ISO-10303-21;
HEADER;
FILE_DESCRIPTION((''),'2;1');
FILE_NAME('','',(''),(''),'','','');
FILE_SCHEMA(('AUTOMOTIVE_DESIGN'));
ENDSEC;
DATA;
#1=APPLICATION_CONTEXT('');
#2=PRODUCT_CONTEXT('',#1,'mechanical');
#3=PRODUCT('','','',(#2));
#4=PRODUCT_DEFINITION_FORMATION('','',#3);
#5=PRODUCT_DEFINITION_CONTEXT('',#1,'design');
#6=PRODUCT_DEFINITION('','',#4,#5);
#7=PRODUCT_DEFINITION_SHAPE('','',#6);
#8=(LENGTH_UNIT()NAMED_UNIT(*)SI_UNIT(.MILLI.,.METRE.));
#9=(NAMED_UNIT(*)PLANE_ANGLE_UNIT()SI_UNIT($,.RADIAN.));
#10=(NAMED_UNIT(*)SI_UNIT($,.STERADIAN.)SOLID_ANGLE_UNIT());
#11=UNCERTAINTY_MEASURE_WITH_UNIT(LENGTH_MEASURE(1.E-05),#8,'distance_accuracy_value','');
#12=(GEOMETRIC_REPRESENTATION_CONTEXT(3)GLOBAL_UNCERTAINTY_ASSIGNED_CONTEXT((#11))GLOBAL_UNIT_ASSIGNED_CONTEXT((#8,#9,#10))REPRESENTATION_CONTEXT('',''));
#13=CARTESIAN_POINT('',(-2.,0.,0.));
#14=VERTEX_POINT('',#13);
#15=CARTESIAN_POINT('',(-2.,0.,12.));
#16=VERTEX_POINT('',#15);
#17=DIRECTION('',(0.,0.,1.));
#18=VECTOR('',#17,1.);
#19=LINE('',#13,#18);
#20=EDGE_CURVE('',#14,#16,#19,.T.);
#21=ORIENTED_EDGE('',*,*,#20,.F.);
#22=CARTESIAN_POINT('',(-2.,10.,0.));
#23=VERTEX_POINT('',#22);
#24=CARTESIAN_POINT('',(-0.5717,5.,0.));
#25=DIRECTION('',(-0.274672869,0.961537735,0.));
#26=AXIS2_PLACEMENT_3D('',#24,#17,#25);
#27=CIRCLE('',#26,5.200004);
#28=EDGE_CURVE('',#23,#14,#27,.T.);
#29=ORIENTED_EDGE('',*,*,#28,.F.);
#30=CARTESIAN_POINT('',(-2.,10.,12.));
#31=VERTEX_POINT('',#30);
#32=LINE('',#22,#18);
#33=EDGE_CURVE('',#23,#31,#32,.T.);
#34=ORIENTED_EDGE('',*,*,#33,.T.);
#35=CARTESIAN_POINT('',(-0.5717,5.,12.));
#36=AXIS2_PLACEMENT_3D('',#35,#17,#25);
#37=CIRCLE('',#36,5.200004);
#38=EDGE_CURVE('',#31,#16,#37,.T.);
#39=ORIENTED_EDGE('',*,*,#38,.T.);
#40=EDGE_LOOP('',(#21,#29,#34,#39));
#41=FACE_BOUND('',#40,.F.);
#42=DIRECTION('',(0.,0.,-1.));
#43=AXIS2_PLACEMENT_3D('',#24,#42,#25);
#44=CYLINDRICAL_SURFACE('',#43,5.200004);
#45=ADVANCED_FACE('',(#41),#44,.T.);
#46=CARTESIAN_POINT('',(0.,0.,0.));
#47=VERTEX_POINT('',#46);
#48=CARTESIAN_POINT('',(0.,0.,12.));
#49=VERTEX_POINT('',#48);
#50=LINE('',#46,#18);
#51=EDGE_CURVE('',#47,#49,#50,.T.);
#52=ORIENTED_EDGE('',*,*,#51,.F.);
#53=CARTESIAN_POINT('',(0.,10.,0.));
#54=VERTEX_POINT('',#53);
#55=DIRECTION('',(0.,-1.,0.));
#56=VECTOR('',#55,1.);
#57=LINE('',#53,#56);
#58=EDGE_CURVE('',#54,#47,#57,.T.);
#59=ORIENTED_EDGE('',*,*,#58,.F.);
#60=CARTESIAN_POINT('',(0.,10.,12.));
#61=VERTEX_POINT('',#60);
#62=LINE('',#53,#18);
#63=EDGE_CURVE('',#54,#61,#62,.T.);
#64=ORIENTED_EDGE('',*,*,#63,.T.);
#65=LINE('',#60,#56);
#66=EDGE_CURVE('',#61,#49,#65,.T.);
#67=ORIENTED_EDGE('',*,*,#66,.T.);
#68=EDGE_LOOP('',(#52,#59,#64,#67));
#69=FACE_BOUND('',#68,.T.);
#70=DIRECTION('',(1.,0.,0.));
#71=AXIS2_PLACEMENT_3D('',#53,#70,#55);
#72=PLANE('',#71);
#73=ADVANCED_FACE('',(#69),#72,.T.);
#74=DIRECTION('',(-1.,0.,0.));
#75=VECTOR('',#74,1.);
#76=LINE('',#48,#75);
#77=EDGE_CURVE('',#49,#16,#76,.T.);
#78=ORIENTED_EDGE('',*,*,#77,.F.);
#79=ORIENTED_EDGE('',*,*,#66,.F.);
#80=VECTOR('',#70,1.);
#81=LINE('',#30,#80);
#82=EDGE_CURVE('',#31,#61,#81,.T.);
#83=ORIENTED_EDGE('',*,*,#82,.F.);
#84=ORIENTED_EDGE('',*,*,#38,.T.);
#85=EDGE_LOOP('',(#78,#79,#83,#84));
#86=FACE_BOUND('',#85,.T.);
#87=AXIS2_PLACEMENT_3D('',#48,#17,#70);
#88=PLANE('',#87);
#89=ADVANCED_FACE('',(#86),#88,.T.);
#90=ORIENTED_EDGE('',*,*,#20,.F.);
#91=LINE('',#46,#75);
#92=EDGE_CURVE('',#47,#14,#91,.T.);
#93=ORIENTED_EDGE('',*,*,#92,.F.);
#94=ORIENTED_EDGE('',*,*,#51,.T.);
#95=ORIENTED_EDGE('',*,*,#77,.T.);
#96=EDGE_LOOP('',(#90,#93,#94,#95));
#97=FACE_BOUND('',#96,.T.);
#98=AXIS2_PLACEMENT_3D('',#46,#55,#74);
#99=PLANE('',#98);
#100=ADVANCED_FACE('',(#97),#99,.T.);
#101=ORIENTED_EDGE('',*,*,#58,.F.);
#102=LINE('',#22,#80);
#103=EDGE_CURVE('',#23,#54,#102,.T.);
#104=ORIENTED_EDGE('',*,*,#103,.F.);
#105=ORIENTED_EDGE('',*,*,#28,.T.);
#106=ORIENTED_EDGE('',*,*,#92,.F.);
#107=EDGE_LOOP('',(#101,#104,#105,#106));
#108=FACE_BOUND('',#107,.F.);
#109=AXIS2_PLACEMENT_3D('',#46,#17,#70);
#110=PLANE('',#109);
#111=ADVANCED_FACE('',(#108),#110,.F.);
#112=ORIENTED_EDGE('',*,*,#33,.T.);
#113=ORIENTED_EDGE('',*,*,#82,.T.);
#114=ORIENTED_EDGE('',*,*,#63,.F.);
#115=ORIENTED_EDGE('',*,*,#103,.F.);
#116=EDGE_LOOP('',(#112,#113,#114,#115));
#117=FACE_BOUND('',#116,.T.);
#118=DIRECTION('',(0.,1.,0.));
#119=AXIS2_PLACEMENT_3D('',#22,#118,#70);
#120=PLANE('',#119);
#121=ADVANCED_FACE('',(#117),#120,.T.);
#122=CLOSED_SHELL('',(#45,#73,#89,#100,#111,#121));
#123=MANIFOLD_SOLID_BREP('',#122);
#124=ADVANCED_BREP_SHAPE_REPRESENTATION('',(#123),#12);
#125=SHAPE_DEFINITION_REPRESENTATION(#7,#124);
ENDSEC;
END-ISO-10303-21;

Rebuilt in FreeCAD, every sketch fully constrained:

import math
import FreeCAD as App
import Part
import Sketcher
from FreeCAD import Vector

doc = App.newDocument("Part")
body = doc.addObject("PartDesign::Body", "Body")

sketch1 = body.newObject("Sketcher::SketchObject", "Sketch")
sketch1.AttachmentSupport = (doc.getObject("XY_Plane"), [""])
sketch1.MapMode = "FlatFace"
sketch1.addGeometry([
    Part.LineSegment(Vector(-2, 0, 0), Vector(0, 0, 0)),
    Part.LineSegment(Vector(0, 0, 0), Vector(0, 10, 0)),
    Part.LineSegment(Vector(0, 10, 0), Vector(-2, 10, 0)),
    Part.ArcOfCircle(Part.Circle(Vector(-0.6, 5, 0), Vector(0, 0, 1), 5.2), math.radians(106), math.radians(254)),
], False)
sketch1.addConstraint([
    Sketcher.Constraint("Coincident", 0, 2, 1, 1),
    Sketcher.Constraint("Coincident", 1, 2, 2, 1),
    Sketcher.Constraint("Coincident", 2, 2, 3, 1),
    Sketcher.Constraint("Coincident", 3, 2, 0, 1),
    Sketcher.Constraint("Horizontal", 0),
    Sketcher.Constraint("Vertical", 1),
    Sketcher.Constraint("Horizontal", 2),
    Sketcher.Constraint("Coincident", 0, 2, -1, 1),
    Sketcher.Constraint("Vertical", 2, 2, 3, 2),
    Sketcher.Constraint("Radius", 3, 5.2),
    Sketcher.Constraint("DistanceX", 0, 1, 0, 2, 2.0),
    Sketcher.Constraint("DistanceY", 1, 1, 1, 2, 10.0),
])
pad1 = body.newObject("PartDesign::Pad", "Pad")
pad1.Profile = sketch1
pad1.Length = 12

doc.recompute()
